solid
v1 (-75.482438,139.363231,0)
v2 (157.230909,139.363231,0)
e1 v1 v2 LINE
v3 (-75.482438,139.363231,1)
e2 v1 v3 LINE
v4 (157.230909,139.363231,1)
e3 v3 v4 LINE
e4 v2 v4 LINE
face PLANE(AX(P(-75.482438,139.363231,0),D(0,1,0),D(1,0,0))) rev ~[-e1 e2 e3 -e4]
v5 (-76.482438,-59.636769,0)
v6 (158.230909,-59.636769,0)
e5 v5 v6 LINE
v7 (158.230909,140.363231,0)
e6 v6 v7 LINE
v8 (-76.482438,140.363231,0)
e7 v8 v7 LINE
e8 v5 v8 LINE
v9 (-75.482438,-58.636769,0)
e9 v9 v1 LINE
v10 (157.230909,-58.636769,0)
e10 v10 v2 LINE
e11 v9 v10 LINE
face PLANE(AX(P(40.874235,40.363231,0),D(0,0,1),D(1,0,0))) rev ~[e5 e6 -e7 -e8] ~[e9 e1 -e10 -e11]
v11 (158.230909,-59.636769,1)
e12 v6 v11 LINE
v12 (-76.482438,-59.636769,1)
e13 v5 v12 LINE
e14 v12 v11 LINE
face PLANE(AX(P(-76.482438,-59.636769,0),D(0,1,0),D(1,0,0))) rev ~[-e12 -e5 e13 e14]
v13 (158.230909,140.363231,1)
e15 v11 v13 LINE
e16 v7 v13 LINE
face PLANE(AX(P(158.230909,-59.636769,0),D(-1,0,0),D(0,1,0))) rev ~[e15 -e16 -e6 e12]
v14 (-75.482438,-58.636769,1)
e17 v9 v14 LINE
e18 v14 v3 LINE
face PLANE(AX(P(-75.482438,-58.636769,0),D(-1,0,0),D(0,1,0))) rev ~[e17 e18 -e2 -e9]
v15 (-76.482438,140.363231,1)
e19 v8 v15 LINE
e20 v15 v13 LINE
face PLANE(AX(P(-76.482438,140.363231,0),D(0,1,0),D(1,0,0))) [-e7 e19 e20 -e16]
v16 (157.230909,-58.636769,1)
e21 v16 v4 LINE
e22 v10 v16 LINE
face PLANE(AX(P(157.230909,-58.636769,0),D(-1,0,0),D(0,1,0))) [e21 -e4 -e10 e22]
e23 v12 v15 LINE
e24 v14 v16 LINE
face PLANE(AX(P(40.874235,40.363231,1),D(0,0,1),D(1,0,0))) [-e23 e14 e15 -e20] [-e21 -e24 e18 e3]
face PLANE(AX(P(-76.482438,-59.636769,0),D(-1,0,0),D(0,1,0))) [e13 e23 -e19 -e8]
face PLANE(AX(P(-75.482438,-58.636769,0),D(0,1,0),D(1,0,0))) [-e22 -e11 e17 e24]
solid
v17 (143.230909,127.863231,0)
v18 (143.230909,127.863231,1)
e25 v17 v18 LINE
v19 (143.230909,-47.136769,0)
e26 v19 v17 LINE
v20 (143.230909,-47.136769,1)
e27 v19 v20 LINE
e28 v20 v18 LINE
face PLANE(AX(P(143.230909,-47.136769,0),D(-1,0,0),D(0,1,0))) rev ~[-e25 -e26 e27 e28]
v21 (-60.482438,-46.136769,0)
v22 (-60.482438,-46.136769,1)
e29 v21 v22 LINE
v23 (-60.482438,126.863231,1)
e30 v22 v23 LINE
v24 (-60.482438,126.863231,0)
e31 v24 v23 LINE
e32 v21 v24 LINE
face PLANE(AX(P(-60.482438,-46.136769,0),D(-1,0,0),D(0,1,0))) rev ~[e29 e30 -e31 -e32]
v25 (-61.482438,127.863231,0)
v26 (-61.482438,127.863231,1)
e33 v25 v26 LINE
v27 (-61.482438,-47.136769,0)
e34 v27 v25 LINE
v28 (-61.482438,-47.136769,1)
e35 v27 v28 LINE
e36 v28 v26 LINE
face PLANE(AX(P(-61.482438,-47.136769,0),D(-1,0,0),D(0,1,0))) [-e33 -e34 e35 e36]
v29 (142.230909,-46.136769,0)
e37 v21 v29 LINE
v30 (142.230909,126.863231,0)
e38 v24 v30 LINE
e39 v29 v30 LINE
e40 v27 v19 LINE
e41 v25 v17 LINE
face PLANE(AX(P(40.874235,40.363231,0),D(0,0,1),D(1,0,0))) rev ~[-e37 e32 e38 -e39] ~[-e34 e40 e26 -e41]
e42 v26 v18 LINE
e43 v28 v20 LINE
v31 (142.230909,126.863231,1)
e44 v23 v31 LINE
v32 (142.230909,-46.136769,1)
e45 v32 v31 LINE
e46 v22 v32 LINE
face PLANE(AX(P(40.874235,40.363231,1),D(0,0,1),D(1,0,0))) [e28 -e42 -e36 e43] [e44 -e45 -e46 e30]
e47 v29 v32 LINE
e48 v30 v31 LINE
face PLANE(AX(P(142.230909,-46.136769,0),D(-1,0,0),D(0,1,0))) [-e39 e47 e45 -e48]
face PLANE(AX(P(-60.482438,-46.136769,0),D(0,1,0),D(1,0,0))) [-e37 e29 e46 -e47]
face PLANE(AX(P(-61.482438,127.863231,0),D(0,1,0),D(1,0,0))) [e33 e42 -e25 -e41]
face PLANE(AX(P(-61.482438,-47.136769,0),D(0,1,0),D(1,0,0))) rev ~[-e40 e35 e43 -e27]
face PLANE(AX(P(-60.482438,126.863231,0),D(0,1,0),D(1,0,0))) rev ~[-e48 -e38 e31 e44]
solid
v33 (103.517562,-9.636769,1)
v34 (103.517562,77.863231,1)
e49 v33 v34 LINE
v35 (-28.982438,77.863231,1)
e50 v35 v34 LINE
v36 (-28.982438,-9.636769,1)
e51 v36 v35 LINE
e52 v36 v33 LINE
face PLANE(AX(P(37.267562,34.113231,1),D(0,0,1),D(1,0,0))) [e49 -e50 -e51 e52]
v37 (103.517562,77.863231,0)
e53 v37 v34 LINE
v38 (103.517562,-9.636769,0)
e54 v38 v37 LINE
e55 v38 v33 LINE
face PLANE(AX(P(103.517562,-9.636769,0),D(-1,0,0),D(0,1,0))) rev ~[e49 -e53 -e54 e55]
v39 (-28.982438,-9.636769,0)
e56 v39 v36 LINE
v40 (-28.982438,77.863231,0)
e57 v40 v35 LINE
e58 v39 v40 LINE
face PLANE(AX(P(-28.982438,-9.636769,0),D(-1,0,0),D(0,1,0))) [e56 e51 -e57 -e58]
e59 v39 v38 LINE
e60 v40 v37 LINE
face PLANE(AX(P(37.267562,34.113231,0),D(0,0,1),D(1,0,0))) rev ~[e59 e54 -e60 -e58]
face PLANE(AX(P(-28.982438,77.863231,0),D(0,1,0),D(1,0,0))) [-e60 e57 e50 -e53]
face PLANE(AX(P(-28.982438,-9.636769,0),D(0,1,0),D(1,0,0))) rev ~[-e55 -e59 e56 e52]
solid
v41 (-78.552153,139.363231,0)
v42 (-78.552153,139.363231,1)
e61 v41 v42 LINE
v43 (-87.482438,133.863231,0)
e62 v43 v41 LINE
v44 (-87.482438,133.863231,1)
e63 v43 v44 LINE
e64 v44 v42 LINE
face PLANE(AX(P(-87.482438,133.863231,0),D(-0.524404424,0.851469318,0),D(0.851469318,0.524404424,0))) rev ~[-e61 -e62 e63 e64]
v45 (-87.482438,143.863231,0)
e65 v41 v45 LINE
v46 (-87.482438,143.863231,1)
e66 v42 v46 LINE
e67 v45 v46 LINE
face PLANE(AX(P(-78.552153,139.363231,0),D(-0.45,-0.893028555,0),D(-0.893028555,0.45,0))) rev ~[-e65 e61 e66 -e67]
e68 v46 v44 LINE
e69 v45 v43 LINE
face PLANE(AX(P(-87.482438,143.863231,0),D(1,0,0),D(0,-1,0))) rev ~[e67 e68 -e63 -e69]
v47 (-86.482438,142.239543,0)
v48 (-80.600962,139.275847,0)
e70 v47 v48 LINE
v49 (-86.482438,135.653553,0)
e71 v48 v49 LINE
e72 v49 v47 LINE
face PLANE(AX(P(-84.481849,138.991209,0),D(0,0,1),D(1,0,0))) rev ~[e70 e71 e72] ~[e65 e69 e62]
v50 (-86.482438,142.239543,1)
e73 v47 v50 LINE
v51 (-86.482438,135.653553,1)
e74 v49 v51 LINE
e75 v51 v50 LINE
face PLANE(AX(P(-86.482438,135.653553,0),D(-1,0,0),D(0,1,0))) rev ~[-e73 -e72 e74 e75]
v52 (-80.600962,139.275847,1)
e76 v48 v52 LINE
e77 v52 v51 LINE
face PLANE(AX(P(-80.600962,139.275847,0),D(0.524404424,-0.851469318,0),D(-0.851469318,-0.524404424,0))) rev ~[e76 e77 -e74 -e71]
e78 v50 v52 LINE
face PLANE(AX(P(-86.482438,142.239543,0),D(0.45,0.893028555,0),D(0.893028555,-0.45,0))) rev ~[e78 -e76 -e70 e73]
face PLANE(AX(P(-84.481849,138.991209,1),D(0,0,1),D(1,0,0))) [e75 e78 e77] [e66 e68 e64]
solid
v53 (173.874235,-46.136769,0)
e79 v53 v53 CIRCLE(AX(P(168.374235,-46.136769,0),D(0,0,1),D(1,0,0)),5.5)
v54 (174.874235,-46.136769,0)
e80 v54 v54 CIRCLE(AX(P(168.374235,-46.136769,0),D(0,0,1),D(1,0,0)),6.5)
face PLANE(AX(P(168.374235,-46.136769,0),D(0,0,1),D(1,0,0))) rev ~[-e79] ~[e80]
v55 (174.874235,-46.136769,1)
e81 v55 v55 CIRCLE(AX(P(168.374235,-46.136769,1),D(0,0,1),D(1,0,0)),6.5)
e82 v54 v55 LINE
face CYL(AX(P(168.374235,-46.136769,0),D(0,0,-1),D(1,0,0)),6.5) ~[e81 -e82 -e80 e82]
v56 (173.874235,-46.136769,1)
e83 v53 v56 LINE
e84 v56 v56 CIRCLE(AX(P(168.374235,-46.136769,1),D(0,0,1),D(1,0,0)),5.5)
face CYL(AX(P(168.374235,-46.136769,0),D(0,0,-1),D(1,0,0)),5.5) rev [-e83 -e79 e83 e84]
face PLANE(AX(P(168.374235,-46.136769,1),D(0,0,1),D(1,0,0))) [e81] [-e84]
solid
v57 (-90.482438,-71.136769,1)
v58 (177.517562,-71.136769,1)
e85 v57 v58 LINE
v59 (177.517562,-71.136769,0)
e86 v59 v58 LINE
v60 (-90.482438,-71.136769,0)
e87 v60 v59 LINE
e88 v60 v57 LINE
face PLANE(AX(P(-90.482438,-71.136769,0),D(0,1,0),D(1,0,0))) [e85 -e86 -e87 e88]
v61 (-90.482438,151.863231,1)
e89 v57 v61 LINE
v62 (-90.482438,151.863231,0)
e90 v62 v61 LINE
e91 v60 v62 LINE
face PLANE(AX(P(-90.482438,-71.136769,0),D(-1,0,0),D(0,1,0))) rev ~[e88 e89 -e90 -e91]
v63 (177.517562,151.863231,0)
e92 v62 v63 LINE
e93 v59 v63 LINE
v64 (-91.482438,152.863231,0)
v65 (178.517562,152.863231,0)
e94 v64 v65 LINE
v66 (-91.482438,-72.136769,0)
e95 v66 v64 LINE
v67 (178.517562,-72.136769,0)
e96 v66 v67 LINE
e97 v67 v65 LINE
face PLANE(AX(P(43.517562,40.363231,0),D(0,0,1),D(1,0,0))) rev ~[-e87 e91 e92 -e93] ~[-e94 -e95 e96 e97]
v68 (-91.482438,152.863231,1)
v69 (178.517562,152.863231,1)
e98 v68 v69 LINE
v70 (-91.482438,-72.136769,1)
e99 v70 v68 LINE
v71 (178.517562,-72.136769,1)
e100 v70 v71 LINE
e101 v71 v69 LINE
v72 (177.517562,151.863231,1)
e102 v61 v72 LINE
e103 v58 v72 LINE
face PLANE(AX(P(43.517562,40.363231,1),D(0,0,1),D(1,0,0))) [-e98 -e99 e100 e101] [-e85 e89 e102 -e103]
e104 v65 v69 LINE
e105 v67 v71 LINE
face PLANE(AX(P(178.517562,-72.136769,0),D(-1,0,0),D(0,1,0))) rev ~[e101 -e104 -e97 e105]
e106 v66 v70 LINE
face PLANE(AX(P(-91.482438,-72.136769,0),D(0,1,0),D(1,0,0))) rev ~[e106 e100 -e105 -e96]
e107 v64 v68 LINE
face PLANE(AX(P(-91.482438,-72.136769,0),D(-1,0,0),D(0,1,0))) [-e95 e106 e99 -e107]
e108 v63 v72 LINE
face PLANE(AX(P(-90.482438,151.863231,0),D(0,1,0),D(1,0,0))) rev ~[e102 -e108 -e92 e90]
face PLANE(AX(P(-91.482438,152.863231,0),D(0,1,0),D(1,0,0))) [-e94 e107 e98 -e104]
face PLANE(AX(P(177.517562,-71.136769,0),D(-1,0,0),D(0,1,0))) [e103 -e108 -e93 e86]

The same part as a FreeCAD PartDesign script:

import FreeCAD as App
import Part
import Sketcher

V = App.Vector
Q = App.Units.Quantity

doc = App.newDocument("Part")
params = doc.addObject("Spreadsheet::Sheet", "Params")
for row, (alias, value) in enumerate([
    ("sketch1_width", "270 mm"),
    ("sketch1_width2", "268 mm"),
    ("sketch1_height", "225 mm"),
    ("sketch1_height2", "223 mm"),
    ("pad1_length", "1 mm"),
    ("sketch2_height", "200 mm"),
    ("sketch2_height2", "198 mm"),
    ("pad2_length", "1 mm"),
    ("sketch3_height", "175 mm"),
    ("sketch3_height2", "173 mm"),
    ("pad3_length", "1 mm"),
    ("sketch4_diameter", "13 mm"),
    ("sketch4_diameter2", "11 mm"),
    ("pad4_length", "1 mm"),
    ("sketch5_width", "132.5 mm"),
    ("sketch5_height", "87.5 mm"),
    ("pad5_length", "1 mm"),
    ("sketch6_height", "10 mm"),
    ("sketch6_length", "10 mm"),
    ("pad6_length", "1 mm"),
], start=1):
    params.set(f"A{row}", alias)
    params.set(f"B{row}", "=" + value)
    params.setAlias(f"B{row}", alias)

body = doc.addObject("PartDesign::Body", "Body")

sketch1 = body.newObject("Sketcher::SketchObject", "Sketch")
sketch1.AttachmentSupport = (doc.getObject("XY_Plane"), [""])
sketch1.MapMode = "FlatFace"
sketch1.addGeometry(Part.LineSegment(V(-91, 153, 0), V(-91, -72, 0)), False)
sketch1.addGeometry(Part.LineSegment(V(-91, -72, 0), V(179, -72, 0)), False)
sketch1.addGeometry(Part.LineSegment(V(179, -72, 0), V(179, 153, 0)), False)
sketch1.addGeometry(Part.LineSegment(V(179, 153, 0), V(-91, 153, 0)), False)
sketch1.addGeometry(Part.LineSegment(V(178, -71, 0), V(-90, -71, 0)), False)
sketch1.addGeometry(Part.LineSegment(V(-90, -71, 0), V(-90, 152, 0)), False)
sketch1.addGeometry(Part.LineSegment(V(-90, 152, 0), V(178, 152, 0)), False)
sketch1.addGeometry(Part.LineSegment(V(178, 152, 0), V(178, -71, 0)), False)
sketch1.addConstraint(Sketcher.Constraint("Coincident", 0, 2, 1, 1))
sketch1.addConstraint(Sketcher.Constraint("Coincident", 1, 2, 2, 1))
sketch1.addConstraint(Sketcher.Constraint("Coincident", 2, 2, 3, 1))
sketch1.addConstraint(Sketcher.Constraint("Coincident", 3, 2, 0, 1))
sketch1.addConstraint(Sketcher.Constraint("Coincident", 4, 2, 5, 1))
sketch1.addConstraint(Sketcher.Constraint("Coincident", 5, 2, 6, 1))
sketch1.addConstraint(Sketcher.Constraint("Coincident", 6, 2, 7, 1))
sketch1.addConstraint(Sketcher.Constraint("Coincident", 7, 2, 4, 1))
sketch1.addConstraint(Sketcher.Constraint("Vertical", 0))
sketch1.addConstraint(Sketcher.Constraint("Horizontal", 1))
sketch1.addConstraint(Sketcher.Constraint("Vertical", 2))
sketch1.addConstraint(Sketcher.Constraint("Horizontal", 3))
sketch1.addConstraint(Sketcher.Constraint("Horizontal", 4))
sketch1.addConstraint(Sketcher.Constraint("Vertical", 5))
sketch1.addConstraint(Sketcher.Constraint("Horizontal", 6))
sketch1.addConstraint(Sketcher.Constraint("Vertical", 7))
sketch1.addConstraint(Sketcher.Constraint("DistanceX", 1, 1, 1, 2, Q("270 mm")))
sketch1.addConstraint(Sketcher.Constraint("DistanceX", 4, 2, 4, 1, Q("268 mm")))
sketch1.addConstraint(Sketcher.Constraint("DistanceY", 0, 2, 0, 1, Q("225 mm")))
sketch1.addConstraint(Sketcher.Constraint("DistanceY", 5, 1, 5, 2, Q("223 mm")))
sketch1.addConstraint(Sketcher.Constraint("DistanceX", 0, 2, 4, 2, Q("1 mm")))
sketch1.addConstraint(Sketcher.Constraint("DistanceY", 0, 2, 4, 2, Q("1 mm")))
sketch1.addConstraint(Sketcher.Constraint("DistanceX", 0, 2, -1, 1, Q("91.482438 mm")))
sketch1.addConstraint(Sketcher.Constraint("DistanceY", 0, 2, -1, 1, Q("72.136769 mm")))
sketch1.setExpression("Constraints[16]", "Params.sketch1_width")
sketch1.setExpression("Constraints[17]", "Params.sketch1_width2")
sketch1.setExpression("Constraints[18]", "Params.sketch1_height")
sketch1.setExpression("Constraints[19]", "Params.sketch1_height2")
pad1 = body.newObject("PartDesign::Pad", "Pad")
pad1.Profile = sketch1
pad1.setExpression("Length", "Params.pad1_length")
body2 = doc.addObject("PartDesign::Body", "Body001")

sketch2 = body2.newObject("Sketcher::SketchObject", "Sketch001")
sketch2.AttachmentSupport = (doc.getObject("XY_Plane001"), [""])
sketch2.MapMode = "FlatFace"
sketch2.addGeometry(Part.LineSegment(V(-76, 140, 0), V(-76, -60, 0)), False)
sketch2.addGeometry(Part.LineSegment(V(-76, -60, 0), V(158, -60, 0)), False)
sketch2.addGeometry(Part.LineSegment(V(158, -60, 0), V(158, 140, 0)), False)
sketch2.addGeometry(Part.LineSegment(V(158, 140, 0), V(-76, 140, 0)), False)
sketch2.addGeometry(Part.LineSegment(V(157, -59, 0), V(-75, -59, 0)), False)
sketch2.addGeometry(Part.LineSegment(V(-75, -59, 0), V(-75, 139, 0)), False)
sketch2.addGeometry(Part.LineSegment(V(-75, 139, 0), V(157, 139, 0)), False)
sketch2.addGeometry(Part.LineSegment(V(157, 139, 0), V(157, -59, 0)), False)
sketch2.addConstraint(Sketcher.Constraint("Coincident", 0, 2, 1, 1))
sketch2.addConstraint(Sketcher.Constraint("Coincident", 1, 2, 2, 1))
sketch2.addConstraint(Sketcher.Constraint("Coincident", 2, 2, 3, 1))
sketch2.addConstraint(Sketcher.Constraint("Coincident", 3, 2, 0, 1))
sketch2.addConstraint(Sketcher.Constraint("Coincident", 4, 2, 5, 1))
sketch2.addConstraint(Sketcher.Constraint("Coincident", 5, 2, 6, 1))
sketch2.addConstraint(Sketcher.Constraint("Coincident", 6, 2, 7, 1))
sketch2.addConstraint(Sketcher.Constraint("Coincident", 7, 2, 4, 1))
sketch2.addConstraint(Sketcher.Constraint("Vertical", 0))
sketch2.addConstraint(Sketcher.Constraint("Horizontal", 1))
sketch2.addConstraint(Sketcher.Constraint("Vertical", 2))
sketch2.addConstraint(Sketcher.Constraint("Horizontal", 3))
sketch2.addConstraint(Sketcher.Constraint("Horizontal", 4))
sketch2.addConstraint(Sketcher.Constraint("Vertical", 5))
sketch2.addConstraint(Sketcher.Constraint("Horizontal", 6))
sketch2.addConstraint(Sketcher.Constraint("Vertical", 7))
sketch2.addConstraint(Sketcher.Constraint("DistanceY", 0, 2, 0, 1, Q("200 mm")))
sketch2.addConstraint(Sketcher.Constraint("DistanceY", 5, 1, 5, 2, Q("198 mm")))
sketch2.addConstraint(Sketcher.Constraint("DistanceX", 0, 2, 4, 2, Q("1 mm")))
sketch2.addConstraint(Sketcher.Constraint("DistanceY", 0, 2, 4, 2, Q("1 mm")))
sketch2.addConstraint(Sketcher.Constraint("DistanceX", 6, 2, 2, 2, Q("1 mm")))
sketch2.addConstraint(Sketcher.Constraint("DistanceX", 1, 1, 1, 2, Q("234.713347 mm")))
sketch2.addConstraint(Sketcher.Constraint("DistanceX", 0, 2, -1, 1, Q("76.482438 mm")))
sketch2.addConstraint(Sketcher.Constraint("DistanceY", 0, 2, -1, 1, Q("59.636769 mm")))
sketch2.setExpression("Constraints[16]", "Params.sketch2_height")
sketch2.setExpression("Constraints[17]", "Params.sketch2_height2")
pad2 = body2.newObject("PartDesign::Pad", "Pad001")
pad2.Profile = sketch2
pad2.setExpression("Length", "Params.pad2_length")
body3 = doc.addObject("PartDesign::Body", "Body002")

sketch3 = body3.newObject("Sketcher::SketchObject", "Sketch002")
sketch3.AttachmentSupport = (doc.getObject("XY_Plane002"), [""])
sketch3.MapMode = "FlatFace"
sketch3.addGeometry(Part.LineSegment(V(-61, 128, 0), V(-61, -47, 0)), False)
sketch3.addGeometry(Part.LineSegment(V(-61, -47, 0), V(143, -47, 0)), False)
sketch3.addGeometry(Part.LineSegment(V(143, -47, 0), V(143, 128, 0)), False)
sketch3.addGeometry(Part.LineSegment(V(143, 128, 0), V(-61, 128, 0)), False)
sketch3.addGeometry(Part.LineSegment(V(142, -46, 0), V(-60, -46, 0)), False)
sketch3.addGeometry(Part.LineSegment(V(-60, -46, 0), V(-60, 127, 0)), False)
sketch3.addGeometry(Part.LineSegment(V(-60, 127, 0), V(142, 127, 0)), False)
sketch3.addGeometry(Part.LineSegment(V(142, 127, 0), V(142, -46, 0)), False)
sketch3.addConstraint(Sketcher.Constraint("Coincident", 0, 2, 1, 1))
sketch3.addConstraint(Sketcher.Constraint("Coincident", 1, 2, 2, 1))
sketch3.addConstraint(Sketcher.Constraint("Coincident", 2, 2, 3, 1))
sketch3.addConstraint(Sketcher.Constraint("Coincident", 3, 2, 0, 1))
sketch3.addConstraint(Sketcher.Constraint("Coincident", 4, 2, 5, 1))
sketch3.addConstraint(Sketcher.Constraint("Coincident", 5, 2, 6, 1))
sketch3.addConstraint(Sketcher.Constraint("Coincident", 6, 2, 7, 1))
sketch3.addConstraint(Sketcher.Constraint("Coincident", 7, 2, 4, 1))
sketch3.addConstraint(Sketcher.Constraint("Vertical", 0))
sketch3.addConstraint(Sketcher.Constraint("Horizontal", 1))
sketch3.addConstraint(Sketcher.Constraint("Vertical", 2))
sketch3.addConstraint(Sketcher.Constraint("Horizontal", 3))
sketch3.addConstraint(Sketcher.Constraint("Horizontal", 4))
sketch3.addConstraint(Sketcher.Constraint("Vertical", 5))
sketch3.addConstraint(Sketcher.Constraint("Horizontal", 6))
sketch3.addConstraint(Sketcher.Constraint("Vertical", 7))
sketch3.addConstraint(Sketcher.Constraint("DistanceY", 0, 2, 0, 1, Q("175 mm")))
sketch3.addConstraint(Sketcher.Constraint("DistanceY", 5, 1, 5, 2, Q("173 mm")))
sketch3.addConstraint(Sketcher.Constraint("DistanceX", 0, 2, 4, 2, Q("1 mm")))
sketch3.addConstraint(Sketcher.Constraint("DistanceY", 0, 2, 4, 2, Q("1 mm")))
sketch3.addConstraint(Sketcher.Constraint("DistanceX", 6, 2, 2, 2, Q("1 mm")))
sketch3.addConstraint(Sketcher.Constraint("DistanceX", 1, 1, 1, 2, Q("204.713347 mm")))
sketch3.addConstraint(Sketcher.Constraint("DistanceX", 0, 2, -1, 1, Q("61.482438 mm")))
sketch3.addConstraint(Sketcher.Constraint("DistanceY", 0, 2, -1, 1, Q("47.136769 mm")))
sketch3.setExpression("Constraints[16]", "Params.sketch3_height")
sketch3.setExpression("Constraints[17]", "Params.sketch3_height2")
pad3 = body3.newObject("PartDesign::Pad", "Pad002")
pad3.Profile = sketch3
pad3.setExpression("Length", "Params.pad3_length")
body4 = doc.addObject("PartDesign::Body", "Body003")

sketch4 = body4.newObject("Sketcher::SketchObject", "Sketch003")
sketch4.AttachmentSupport = (doc.getObject("XY_Plane003"), [""])
sketch4.MapMode = "FlatFace"
sketch4.addGeometry(Part.Circle(V(168, -46, 0), V(0, 0, 1), 6), False)
sketch4.addGeometry(Part.Circle(V(168, -46, 0), V(0, 0, 1), 6), False)
sketch4.addConstraint(Sketcher.Constraint("Coincident", 1, 3, 0, 3))
sketch4.addConstraint(Sketcher.Constraint("Diameter", 0, Q("13 mm")))
sketch4.addConstraint(Sketcher.Constraint("Diameter", 1, Q("11 mm")))
sketch4.addConstraint(Sketcher.Constraint("DistanceY", 0, 3, -1, 1, Q("46.136769 mm")))
sketch4.addConstraint(Sketcher.Constraint("DistanceX", -1, 1, 0, 3, Q("168.374235 mm")))
sketch4.setExpression("Constraints[1]", "Params.sketch4_diameter")
sketch4.setExpression("Constraints[2]", "Params.sketch4_diameter2")
pad4 = body4.newObject("PartDesign::Pad", "Pad003")
pad4.Profile = sketch4
pad4.setExpression("Length", "Params.pad4_length")
body5 = doc.addObject("PartDesign::Body", "Body004")

sketch5 = body5.newObject("Sketcher::SketchObject", "Sketch004")
sketch5.AttachmentSupport = (doc.getObject("XY_Plane004"), [""])
sketch5.MapMode = "FlatFace"
sketch5.addGeometry(Part.LineSegment(V(-29, 78, 0), V(-29, -10, 0)), False)
sketch5.addGeometry(Part.LineSegment(V(-29, -10, 0), V(104, -10, 0)), False)
sketch5.addGeometry(Part.LineSegment(V(104, -10, 0), V(104, 78, 0)), False)
sketch5.addGeometry(Part.LineSegment(V(104, 78, 0), V(-29, 78, 0)), False)
sketch5.addConstraint(Sketcher.Constraint("Coincident", 0, 2, 1, 1))
sketch5.addConstraint(Sketcher.Constraint("Coincident", 1, 2, 2, 1))
sketch5.addConstraint(Sketcher.Constraint("Coincident", 2, 2, 3, 1))
sketch5.addConstraint(Sketcher.Constraint("Coincident", 3, 2, 0, 1))
sketch5.addConstraint(Sketcher.Constraint("Vertical", 0))
sketch5.addConstraint(Sketcher.Constraint("Horizontal", 1))
sketch5.addConstraint(Sketcher.Constraint("Vertical", 2))
sketch5.addConstraint(Sketcher.Constraint("Horizontal", 3))
sketch5.addConstraint(Sketcher.Constraint("DistanceX", 1, 1, 1, 2, Q("132.5 mm")))
sketch5.addConstraint(Sketcher.Constraint("DistanceY", 0, 2, 0, 1, Q("87.5 mm")))
sketch5.addConstraint(Sketcher.Constraint("DistanceX", 0, 2, -1, 1, Q("28.982438 mm")))
sketch5.addConstraint(Sketcher.Constraint("DistanceY", 0, 2, -1, 1, Q("9.636769 mm")))
sketch5.setExpression("Constraints[8]", "Params.sketch5_width")
sketch5.setExpression("Constraints[9]", "Params.sketch5_height")
pad5 = body5.newObject("PartDesign::Pad", "Pad004")
pad5.Profile = sketch5
pad5.setExpression("Length", "Params.pad5_length")
body6 = doc.addObject("PartDesign::Body", "Body005")

sketch6 = body6.newObject("Sketcher::SketchObject", "Sketch005")
sketch6.AttachmentSupport = (doc.getObject("XY_Plane005"), [""])
sketch6.MapMode = "FlatFace"
sketch6.addGeometry(Part.LineSegment(V(-79, 139, 0), V(-87, 144, 0)), False)
sketch6.addGeometry(Part.LineSegment(V(-87, 144, 0), V(-87, 134, 0)), False)
sketch6.addGeometry(Part.LineSegment(V(-87, 134, 0), V(-79, 139, 0)), False)
sketch6.addGeometry(Part.LineSegment(V(-81, 139, 0), V(-86, 136, 0)), False)
sketch6.addGeometry(Part.LineSegment(V(-86, 136, 0), V(-86, 142, 0)), False)
sketch6.addGeometry(Part.LineSegment(V(-86, 142, 0), V(-81, 139, 0)), False)
sketch6.addConstraint(Sketcher.Constraint("Coincident", 0, 2, 1, 1))
sketch6.addConstraint(Sketcher.Constraint("Coincident", 1, 2, 2, 1))
sketch6.addConstraint(Sketcher.Constraint("Coincident", 2, 2, 0, 1))
sketch6.addConstraint(Sketcher.Constraint("Coincident", 3, 2, 4, 1))
sketch6.addConstraint(Sketcher.Constraint("Coincident", 4, 2, 5, 1))
sketch6.addConstraint(Sketcher.Constraint("Coincident", 5, 2, 3, 1))
sketch6.addConstraint(Sketcher.Constraint("Vertical", 1))
sketch6.addConstraint(Sketcher.Constraint("Vertical", 4))
sketch6.addConstraint(Sketcher.Constraint("Parallel", 2, 3))
sketch6.addConstraint(Sketcher.Constraint("Parallel", 0, 5))
sketch6.addConstraint(Sketcher.Constraint("DistanceY", 1, 2, 1, 1, Q("10 mm")))
sketch6.addConstraint(Sketcher.Constraint("Distance", 0, Q("10 mm")))
sketch6.addConstraint(Sketcher.Constraint("DistanceX", 1, 2, 3, 2, Q("1 mm")))
sketch6.addConstraint(Sketcher.Constraint("DistanceY", 2, 2, 0, 2, Q("4.5 mm")))
sketch6.addConstraint(Sketcher.Constraint("DistanceY", 4, 1, 4, 2, Q("6.58599 mm")))
sketch6.addConstraint(Sketcher.Constraint("DistanceX", 0, 2, -1, 1, Q("87.482438 mm")))
sketch6.addConstraint(Sketcher.Constraint("DistanceY", -1, 1, 0, 2, Q("143.863231 mm")))
sketch6.addConstraint(Sketcher.Constraint("DistanceY", 4, 2, 0, 2, Q("1.623688 mm")))
sketch6.setExpression("Constraints[10]", "Params.sketch6_height")
sketch6.setExpression("Constraints[11]", "Params.sketch6_length")
pad6 = body6.newObject("PartDesign::Pad", "Pad005")
pad6.Profile = sketch6
pad6.setExpression("Length", "Params.pad6_length")

doc.recompute()
